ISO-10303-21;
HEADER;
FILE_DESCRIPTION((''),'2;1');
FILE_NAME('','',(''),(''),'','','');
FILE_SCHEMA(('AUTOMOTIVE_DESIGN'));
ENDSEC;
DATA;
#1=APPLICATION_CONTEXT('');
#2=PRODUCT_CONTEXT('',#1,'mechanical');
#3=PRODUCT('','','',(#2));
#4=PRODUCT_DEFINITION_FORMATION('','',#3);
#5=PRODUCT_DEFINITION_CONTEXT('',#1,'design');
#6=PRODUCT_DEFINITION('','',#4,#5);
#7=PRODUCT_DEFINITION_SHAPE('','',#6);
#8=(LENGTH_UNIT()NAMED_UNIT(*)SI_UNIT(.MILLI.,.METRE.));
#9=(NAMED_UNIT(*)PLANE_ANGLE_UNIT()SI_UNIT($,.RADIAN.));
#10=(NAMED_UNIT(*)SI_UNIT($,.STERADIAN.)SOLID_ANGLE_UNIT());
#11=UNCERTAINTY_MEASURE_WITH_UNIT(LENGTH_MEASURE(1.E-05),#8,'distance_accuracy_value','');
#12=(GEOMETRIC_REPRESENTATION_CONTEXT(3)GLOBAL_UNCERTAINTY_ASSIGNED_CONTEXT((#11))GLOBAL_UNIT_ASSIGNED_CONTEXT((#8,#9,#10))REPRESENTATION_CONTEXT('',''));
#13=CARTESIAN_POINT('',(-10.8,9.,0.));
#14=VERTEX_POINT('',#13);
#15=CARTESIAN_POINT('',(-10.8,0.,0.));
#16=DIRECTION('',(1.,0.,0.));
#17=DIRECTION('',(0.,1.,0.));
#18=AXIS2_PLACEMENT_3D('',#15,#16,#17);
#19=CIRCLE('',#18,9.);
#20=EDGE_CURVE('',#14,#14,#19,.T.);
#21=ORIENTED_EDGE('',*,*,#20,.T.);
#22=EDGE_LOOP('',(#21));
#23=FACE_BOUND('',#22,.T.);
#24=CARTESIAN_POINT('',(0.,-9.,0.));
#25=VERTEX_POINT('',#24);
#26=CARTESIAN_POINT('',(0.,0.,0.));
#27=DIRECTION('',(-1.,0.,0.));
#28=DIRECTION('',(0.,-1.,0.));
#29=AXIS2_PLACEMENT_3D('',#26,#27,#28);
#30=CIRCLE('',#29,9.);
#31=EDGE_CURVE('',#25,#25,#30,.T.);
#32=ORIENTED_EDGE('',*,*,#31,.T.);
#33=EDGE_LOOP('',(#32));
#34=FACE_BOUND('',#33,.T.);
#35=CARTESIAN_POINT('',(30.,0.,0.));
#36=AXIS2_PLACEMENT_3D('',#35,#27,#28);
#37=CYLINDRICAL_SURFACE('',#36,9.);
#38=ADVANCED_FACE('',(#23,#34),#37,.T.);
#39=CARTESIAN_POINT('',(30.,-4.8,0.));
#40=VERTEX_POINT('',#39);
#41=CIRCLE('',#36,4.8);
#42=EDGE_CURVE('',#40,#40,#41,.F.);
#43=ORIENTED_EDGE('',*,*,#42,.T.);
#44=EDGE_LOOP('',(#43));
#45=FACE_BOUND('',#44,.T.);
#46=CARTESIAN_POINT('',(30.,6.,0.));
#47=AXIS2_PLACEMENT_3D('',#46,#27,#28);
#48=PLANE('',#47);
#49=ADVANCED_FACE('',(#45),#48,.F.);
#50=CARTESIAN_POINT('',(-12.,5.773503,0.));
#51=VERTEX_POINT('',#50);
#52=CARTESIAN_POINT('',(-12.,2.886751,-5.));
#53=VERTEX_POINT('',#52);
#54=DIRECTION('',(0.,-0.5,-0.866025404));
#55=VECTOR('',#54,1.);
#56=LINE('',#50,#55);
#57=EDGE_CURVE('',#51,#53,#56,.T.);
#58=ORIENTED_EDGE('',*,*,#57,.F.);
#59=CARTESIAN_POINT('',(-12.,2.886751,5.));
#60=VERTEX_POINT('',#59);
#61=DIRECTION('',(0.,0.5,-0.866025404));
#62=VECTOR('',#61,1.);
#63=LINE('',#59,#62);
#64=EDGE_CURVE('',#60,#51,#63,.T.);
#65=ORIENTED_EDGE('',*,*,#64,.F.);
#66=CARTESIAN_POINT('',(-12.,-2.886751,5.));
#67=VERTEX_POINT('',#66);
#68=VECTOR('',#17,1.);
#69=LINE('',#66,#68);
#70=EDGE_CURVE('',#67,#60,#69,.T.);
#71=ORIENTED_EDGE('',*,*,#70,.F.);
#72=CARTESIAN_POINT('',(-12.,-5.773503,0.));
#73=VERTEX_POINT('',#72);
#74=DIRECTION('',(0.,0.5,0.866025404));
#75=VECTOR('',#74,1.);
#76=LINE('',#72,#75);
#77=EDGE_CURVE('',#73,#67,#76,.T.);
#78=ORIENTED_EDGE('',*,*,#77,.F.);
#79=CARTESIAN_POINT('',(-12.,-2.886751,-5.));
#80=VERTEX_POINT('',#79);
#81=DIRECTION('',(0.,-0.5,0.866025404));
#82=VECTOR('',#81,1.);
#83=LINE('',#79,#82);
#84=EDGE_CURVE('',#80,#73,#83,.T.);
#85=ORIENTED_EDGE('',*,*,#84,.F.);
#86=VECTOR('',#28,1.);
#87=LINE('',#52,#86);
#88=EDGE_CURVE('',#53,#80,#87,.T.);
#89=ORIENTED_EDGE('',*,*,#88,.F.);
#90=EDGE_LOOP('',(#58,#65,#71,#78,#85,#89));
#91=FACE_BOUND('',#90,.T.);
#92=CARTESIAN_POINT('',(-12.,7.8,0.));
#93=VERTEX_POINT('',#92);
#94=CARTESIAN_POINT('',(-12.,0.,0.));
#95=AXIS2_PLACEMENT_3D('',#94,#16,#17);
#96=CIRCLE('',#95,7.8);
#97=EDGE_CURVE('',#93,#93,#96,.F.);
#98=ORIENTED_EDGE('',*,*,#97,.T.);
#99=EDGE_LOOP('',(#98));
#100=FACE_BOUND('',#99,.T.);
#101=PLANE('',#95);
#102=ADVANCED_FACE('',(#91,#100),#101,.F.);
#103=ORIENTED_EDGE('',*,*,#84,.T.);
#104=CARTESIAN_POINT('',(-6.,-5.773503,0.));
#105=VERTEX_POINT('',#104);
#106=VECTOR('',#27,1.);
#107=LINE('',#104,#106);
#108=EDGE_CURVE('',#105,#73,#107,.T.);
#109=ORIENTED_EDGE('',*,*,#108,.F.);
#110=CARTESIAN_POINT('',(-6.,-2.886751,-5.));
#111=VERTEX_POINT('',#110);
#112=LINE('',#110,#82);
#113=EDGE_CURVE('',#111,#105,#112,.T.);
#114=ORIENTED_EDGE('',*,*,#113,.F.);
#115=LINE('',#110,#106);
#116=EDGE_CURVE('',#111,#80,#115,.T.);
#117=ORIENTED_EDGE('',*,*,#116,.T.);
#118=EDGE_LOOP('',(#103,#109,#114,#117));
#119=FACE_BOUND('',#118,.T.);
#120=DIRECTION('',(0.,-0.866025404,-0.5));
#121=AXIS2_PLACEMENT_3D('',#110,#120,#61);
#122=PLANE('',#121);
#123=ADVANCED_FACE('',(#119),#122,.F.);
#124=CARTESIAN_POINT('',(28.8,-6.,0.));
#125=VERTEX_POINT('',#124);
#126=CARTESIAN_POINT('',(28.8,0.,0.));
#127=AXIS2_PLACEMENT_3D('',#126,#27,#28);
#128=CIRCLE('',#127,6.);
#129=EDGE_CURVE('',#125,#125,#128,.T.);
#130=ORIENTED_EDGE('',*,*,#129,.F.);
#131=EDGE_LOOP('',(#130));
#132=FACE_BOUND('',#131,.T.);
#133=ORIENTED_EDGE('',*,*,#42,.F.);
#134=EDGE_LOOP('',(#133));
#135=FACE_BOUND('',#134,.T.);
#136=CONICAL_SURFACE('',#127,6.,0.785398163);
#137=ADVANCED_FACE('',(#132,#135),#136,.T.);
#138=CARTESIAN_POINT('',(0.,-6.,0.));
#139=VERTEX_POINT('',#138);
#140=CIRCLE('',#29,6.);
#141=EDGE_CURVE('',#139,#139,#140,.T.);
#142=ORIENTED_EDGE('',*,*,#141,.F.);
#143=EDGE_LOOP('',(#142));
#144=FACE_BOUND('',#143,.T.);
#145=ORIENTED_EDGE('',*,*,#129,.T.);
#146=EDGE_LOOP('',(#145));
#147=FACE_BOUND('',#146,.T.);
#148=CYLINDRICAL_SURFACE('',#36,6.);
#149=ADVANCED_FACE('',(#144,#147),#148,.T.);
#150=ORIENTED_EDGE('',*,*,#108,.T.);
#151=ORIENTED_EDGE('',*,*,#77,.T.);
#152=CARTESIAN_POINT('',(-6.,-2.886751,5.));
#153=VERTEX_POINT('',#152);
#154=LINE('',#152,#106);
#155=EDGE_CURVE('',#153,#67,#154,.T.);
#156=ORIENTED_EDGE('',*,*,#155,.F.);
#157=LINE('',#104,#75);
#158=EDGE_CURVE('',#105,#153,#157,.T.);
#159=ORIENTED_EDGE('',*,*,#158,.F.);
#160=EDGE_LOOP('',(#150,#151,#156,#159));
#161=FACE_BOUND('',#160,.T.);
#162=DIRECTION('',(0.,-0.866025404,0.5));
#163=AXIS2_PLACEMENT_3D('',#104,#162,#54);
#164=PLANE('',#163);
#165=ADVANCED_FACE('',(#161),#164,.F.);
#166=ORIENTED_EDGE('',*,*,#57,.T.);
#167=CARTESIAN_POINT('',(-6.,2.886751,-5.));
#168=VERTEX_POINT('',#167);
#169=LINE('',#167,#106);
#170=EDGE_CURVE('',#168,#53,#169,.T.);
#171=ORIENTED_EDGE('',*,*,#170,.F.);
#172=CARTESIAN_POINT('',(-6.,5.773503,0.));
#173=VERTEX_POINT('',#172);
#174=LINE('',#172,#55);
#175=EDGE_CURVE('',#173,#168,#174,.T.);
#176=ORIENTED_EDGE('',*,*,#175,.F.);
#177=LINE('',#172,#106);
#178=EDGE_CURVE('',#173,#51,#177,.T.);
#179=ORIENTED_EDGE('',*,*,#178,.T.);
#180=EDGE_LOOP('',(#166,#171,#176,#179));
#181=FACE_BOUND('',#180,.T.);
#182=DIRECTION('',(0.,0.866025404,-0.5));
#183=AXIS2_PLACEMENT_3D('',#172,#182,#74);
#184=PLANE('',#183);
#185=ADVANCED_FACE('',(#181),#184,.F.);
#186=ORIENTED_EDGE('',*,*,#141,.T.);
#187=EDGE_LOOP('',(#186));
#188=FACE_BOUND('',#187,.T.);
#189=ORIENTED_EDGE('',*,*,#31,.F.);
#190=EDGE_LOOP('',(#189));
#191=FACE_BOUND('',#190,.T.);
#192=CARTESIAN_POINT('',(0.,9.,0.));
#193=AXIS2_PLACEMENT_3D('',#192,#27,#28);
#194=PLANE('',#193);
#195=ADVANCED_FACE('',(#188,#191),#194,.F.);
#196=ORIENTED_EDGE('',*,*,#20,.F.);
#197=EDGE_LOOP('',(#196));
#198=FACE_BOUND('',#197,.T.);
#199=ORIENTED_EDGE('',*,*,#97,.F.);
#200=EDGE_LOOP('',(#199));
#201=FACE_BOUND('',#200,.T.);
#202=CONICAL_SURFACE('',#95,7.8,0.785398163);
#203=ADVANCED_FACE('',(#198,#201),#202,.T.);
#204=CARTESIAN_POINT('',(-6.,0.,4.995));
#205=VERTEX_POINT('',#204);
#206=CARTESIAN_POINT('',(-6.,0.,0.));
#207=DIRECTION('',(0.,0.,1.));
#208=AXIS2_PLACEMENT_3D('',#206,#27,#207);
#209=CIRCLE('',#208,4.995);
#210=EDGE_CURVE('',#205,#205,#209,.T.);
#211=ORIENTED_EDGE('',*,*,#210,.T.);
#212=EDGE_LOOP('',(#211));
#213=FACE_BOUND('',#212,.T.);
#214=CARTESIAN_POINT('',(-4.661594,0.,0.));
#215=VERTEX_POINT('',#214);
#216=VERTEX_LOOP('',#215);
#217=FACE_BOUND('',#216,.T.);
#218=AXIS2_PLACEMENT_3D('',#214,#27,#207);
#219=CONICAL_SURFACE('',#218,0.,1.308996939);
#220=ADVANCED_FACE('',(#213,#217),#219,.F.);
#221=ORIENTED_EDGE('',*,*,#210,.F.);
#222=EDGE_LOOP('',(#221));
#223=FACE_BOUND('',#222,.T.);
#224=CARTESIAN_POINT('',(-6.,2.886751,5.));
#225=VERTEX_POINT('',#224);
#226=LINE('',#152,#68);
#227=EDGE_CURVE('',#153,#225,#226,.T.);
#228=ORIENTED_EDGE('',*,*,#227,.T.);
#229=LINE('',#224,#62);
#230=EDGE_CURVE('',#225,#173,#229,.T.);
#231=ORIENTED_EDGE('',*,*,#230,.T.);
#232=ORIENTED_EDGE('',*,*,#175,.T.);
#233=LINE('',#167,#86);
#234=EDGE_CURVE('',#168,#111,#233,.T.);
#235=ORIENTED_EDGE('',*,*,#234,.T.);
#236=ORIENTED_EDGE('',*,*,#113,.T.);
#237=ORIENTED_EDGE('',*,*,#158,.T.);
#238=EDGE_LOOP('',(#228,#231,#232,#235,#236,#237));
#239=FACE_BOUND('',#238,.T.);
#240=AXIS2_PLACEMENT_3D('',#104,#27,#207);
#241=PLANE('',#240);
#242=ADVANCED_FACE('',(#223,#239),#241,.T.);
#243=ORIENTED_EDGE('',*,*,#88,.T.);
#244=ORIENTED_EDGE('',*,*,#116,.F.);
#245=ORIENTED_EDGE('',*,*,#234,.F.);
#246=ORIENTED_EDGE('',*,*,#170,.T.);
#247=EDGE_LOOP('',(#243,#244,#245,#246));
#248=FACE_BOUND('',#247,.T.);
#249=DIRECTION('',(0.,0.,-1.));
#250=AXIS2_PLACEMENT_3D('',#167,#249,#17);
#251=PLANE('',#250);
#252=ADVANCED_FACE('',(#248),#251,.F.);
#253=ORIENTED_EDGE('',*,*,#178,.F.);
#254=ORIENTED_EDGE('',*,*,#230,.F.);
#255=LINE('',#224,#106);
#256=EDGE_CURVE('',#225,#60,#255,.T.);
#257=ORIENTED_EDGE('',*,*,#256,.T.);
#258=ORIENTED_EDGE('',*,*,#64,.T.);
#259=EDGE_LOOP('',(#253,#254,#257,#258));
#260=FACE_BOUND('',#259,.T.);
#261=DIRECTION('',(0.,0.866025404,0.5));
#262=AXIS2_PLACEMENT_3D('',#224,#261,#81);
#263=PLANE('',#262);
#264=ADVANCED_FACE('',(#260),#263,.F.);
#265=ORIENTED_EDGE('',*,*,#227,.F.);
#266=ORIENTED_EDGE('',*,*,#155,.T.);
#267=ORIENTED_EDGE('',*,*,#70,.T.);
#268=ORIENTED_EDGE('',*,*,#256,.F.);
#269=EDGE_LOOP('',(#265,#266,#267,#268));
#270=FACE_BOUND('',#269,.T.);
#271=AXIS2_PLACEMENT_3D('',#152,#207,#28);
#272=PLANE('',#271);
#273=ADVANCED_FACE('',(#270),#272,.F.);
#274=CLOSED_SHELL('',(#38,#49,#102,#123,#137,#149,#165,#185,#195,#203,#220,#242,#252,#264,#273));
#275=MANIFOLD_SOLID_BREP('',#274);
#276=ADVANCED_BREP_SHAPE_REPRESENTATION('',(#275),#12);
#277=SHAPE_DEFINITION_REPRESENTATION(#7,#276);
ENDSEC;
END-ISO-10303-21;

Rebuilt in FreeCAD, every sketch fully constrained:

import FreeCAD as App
import Part
import Sketcher
from FreeCAD import Vector
Q = App.Units.Quantity


def edges_at(feature, points):
    """Names of the edges that pass closest to the given points."""
    edges = feature.Shape.Edges
    near = lambda p: min(range(len(edges)), key=lambda i: edges[i].distToShape(Part.Vertex(*p))[0])
    return sorted({f"Edge{near(p) + 1}" for p in points})


def add_polygon(sketch, points):
    """Adds a closed chain of lines whose ends are joined by coincident constraints."""
    first, n = sketch.GeometryCount, len(points)
    for a, b in zip(points, points[1:] + points[:1]):
        sketch.addGeometry(Part.LineSegment(App.Vector(*a, 0), App.Vector(*b, 0)), False)
    for i in range(n):
        sketch.addConstraint(Sketcher.Constraint("Coincident", first + i, 2, first + (i + 1) % n, 1))

doc = App.newDocument("Part")
body = doc.addObject("PartDesign::Body", "Body")

# Sketch on XY plane
sketch1 = doc.addObject("Sketcher::SketchObject", "Sketch")
body.addObject(sketch1)
sketch1.AttachmentSupport = (doc.XY_Plane, [""])
sketch1.MapMode = "FlatFace"
add_polygon(sketch1, [(-12, 9), (-12, 0), (30, 0), (30, 6), (0, 6), (0, 9)])  # lines 0-5
sketch1.addConstraint([
    Sketcher.Constraint("Vertical", 0),
    Sketcher.Constraint("Horizontal", 1),
    Sketcher.Constraint("Vertical", 2),
    Sketcher.Constraint("Horizontal", 3),
    Sketcher.Constraint("Vertical", 4),
    Sketcher.Constraint("Horizontal", 5),
    Sketcher.Constraint("PointOnObject", 0, 2, -1),
    Sketcher.Constraint("PointOnObject", 3, 2, -2),
    Sketcher.Constraint("DistanceX", 1, 1, 1, 2, 42.0),
    Sketcher.Constraint("DistanceX", 3, 2, 3, 1, 30.0),
    Sketcher.Constraint("DistanceY", 0, 2, 0, 1, 9.0),
    Sketcher.Constraint("DistanceY", 2, 1, 2, 2, 6.0),
])
revolution = doc.addObject("PartDesign::Revolution", "Revolution")
body.addObject(revolution)
revolution.Profile = sketch1
revolution.ReferenceAxis = (sketch1, ["H_Axis"])
revolution.Angle = 360

# Sketch on XY plane
sketch2 = doc.addObject("Sketcher::SketchObject", "Sketch001")
body.addObject(sketch2)
sketch2.AttachmentSupport = (doc.XY_Plane, [""])
sketch2.MapMode = "FlatFace"
add_polygon(sketch2, [(-12, 5), (-12, 0), (-4.7, 0), (-6, 5)])  # lines 0-3
sketch2.addConstraint([
    Sketcher.Constraint("Vertical", 0),
    Sketcher.Constraint("Horizontal", 1),
    Sketcher.Constraint("Horizontal", 3),
    Sketcher.Constraint("PointOnObject", 0, 2, -1),
    Sketcher.Constraint("DistanceX", 3, 2, 3, 1, 6.0),
    Sketcher.Constraint("Angle", 2, Q("105 deg")),
    Sketcher.Constraint("DistanceX", 0, 2, -1, 1, 12.0),
    Sketcher.Constraint("DistanceY", 0, 2, 0, 1, 4.995),
])
groove = doc.addObject("PartDesign::Groove", "Groove")
body.addObject(groove)
groove.Profile = sketch2
groove.ReferenceAxis = (sketch2, ["H_Axis"])
groove.Angle = 360

# Sketch on YZ plane
sketch3 = doc.addObject("Sketcher::SketchObject", "Sketch002")
body.addObject(sketch3)
sketch3.AttachmentSupport = (doc.YZ_Plane, [""])
sketch3.MapMode = "FlatFace"
sketch3.AttachmentOffset = App.Placement(Vector(0, 0, -12), App.Rotation())
add_polygon(sketch3, [(-6, 0), (-3, 5), (3, 5), (6, 0), (3, -5), (-3, -5)])  # lines 0-5
sketch3.addConstraint([
    Sketcher.Constraint("Horizontal", 1),
    Sketcher.Constraint("Horizontal", 4),
    Sketcher.Constraint("Symmetric", 0, 2, 3, 2, -1, 1),
    Sketcher.Constraint("Symmetric", 2, 2, 5, 2, -1, 1),
    Sketcher.Constraint("PointOnObject", 2, 2, -1),
    Sketcher.Constraint("Parallel", 2, 5),
    Sketcher.Constraint("Vertical", 1, 2, 3, 2),
    Sketcher.Constraint("Angle", 0, Q("60 deg")),
    Sketcher.Constraint("DistanceY", -1, 1, 0, 2, 5.0),
    Sketcher.Constraint("DistanceX", 1, 1, 1, 2, 5.773503),
])
pocket1 = doc.addObject("PartDesign::Pocket", "Pocket")
body.addObject(pocket1)
pocket1.Profile = sketch3
pocket1.Length = 6
pocket1.Reversed = True
doc.recompute()

chamfer = doc.addObject("PartDesign::Chamfer", "Chamfer")
body.addObject(chamfer)
chamfer.Base = (pocket1, edges_at(pocket1, [(30, 6, 0), (-12, 9, 0)]))
chamfer.Size = 1.2

doc.recompute()
